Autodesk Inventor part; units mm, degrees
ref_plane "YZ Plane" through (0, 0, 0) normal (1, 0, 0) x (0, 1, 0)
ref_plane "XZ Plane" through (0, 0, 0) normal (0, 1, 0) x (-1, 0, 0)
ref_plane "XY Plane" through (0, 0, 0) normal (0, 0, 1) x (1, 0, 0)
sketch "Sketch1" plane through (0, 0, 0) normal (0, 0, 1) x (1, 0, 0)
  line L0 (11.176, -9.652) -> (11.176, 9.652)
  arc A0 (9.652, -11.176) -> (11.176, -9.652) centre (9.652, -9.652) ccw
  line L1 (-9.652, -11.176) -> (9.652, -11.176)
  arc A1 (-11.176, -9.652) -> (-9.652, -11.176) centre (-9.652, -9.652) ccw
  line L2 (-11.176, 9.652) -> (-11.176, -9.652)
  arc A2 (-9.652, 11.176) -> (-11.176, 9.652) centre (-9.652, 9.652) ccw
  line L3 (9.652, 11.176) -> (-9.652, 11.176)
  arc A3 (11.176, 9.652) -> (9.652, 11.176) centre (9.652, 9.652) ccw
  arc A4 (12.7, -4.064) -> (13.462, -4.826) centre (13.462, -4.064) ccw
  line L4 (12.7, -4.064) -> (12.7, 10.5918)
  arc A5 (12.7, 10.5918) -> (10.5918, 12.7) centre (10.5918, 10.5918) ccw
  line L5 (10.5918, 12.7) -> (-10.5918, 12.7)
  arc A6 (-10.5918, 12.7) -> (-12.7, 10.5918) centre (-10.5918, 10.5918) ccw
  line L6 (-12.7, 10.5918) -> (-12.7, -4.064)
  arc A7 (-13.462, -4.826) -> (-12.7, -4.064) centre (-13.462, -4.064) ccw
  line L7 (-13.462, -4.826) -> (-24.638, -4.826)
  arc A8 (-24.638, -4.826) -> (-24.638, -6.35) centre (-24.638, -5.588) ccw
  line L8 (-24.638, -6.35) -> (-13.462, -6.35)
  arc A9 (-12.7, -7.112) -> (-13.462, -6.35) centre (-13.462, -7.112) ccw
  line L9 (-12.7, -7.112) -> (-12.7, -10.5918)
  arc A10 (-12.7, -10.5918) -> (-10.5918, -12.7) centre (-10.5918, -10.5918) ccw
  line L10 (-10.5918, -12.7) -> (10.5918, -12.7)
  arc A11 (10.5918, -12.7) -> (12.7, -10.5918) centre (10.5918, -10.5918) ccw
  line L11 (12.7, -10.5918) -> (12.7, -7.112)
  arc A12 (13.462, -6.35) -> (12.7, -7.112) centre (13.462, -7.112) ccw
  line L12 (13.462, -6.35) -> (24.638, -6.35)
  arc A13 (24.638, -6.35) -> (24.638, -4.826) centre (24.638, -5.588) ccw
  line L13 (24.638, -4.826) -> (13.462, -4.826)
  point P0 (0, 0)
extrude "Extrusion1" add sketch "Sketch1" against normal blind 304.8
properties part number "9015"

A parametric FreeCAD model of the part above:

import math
import FreeCAD as App
import Part
import Sketcher

V = App.Vector
Q = App.Units.Quantity

doc = App.newDocument("Part")
params = doc.addObject("Spreadsheet::Sheet", "Params")
for row, (alias, value) in enumerate([
    ("sketch1_radius", "0.03 in"),
    ("sketch1_radius2", "0.06 in"),
    ("sketch1_radius3", "0.083 in"),
    ("sketch1_width", "0.44 in"),
    ("sketch1_width2", "0.76 in"),
    ("pad1_length", "12 in"),
], start=1):
    params.set(f"A{row}", alias)
    params.set(f"B{row}", "=" + value)
    params.setAlias(f"B{row}", alias)

body = doc.addObject("PartDesign::Body", "Body")

# Sketch on XY plane
sketch1 = doc.addObject("Sketcher::SketchObject", "Sketch")
body.addObject(sketch1)
sketch1.AttachmentSupport = (doc.XY_Plane, [""])
sketch1.MapMode = "FlatFace"
sketch1.addGeometry(Part.ArcOfCircle(Part.Circle(V(13.5, -4.1, 0), V(0, 0, 1), 0.8), math.radians(180), math.radians(270)), False)
sketch1.addGeometry(Part.LineSegment(V(12.7, -4.1, 0), V(12.7, 10.6, 0)), False)
sketch1.addGeometry(Part.ArcOfCircle(Part.Circle(V(10.6, 10.6, 0), V(0, 0, 1), 2.1), math.radians(0), math.radians(90)), False)
sketch1.addGeometry(Part.LineSegment(V(10.6, 12.7, 0), V(-10.6, 12.7, 0)), False)
sketch1.addGeometry(Part.ArcOfCircle(Part.Circle(V(-10.6, 10.6, 0), V(0, 0, 1), 2.1), math.radians(90), math.radians(180)), False)
sketch1.addGeometry(Part.LineSegment(V(-12.7, 10.6, 0), V(-12.7, -4.1, 0)), False)
sketch1.addGeometry(Part.ArcOfCircle(Part.Circle(V(-13.5, -4.1, 0), V(0, 0, 1), 0.8), math.radians(-90), math.radians(0)), False)
sketch1.addGeometry(Part.LineSegment(V(-13.5, -4.8, 0), V(-24.6, -4.8, 0)), False)
sketch1.addGeometry(Part.ArcOfCircle(Part.Circle(V(-24.6, -5.6, 0), V(0, 0, 1), 0.8), math.radians(90), math.radians(270)), False)
sketch1.addGeometry(Part.LineSegment(V(-24.6, -6.3, 0), V(-13.5, -6.3, 0)), False)
sketch1.addGeometry(Part.ArcOfCircle(Part.Circle(V(-13.5, -7.1, 0), V(0, 0, 1), 0.8), math.radians(0), math.radians(90)), False)
sketch1.addGeometry(Part.LineSegment(V(-12.7, -7.1, 0), V(-12.7, -10.6, 0)), False)
sketch1.addGeometry(Part.ArcOfCircle(Part.Circle(V(-10.6, -10.6, 0), V(0, 0, 1), 2.1), math.radians(180), math.radians(270)), False)
sketch1.addGeometry(Part.LineSegment(V(-10.6, -12.7, 0), V(10.6, -12.7, 0)), False)
sketch1.addGeometry(Part.ArcOfCircle(Part.Circle(V(10.6, -10.6, 0), V(0, 0, 1), 2.1), math.radians(-90), math.radians(0)), False)
sketch1.addGeometry(Part.LineSegment(V(12.7, -10.6, 0), V(12.7, -7.1, 0)), False)
sketch1.addGeometry(Part.ArcOfCircle(Part.Circle(V(13.5, -7.1, 0), V(0, 0, 1), 0.8), math.radians(90), math.radians(180)), False)
sketch1.addGeometry(Part.LineSegment(V(13.5, -6.3, 0), V(24.6, -6.3, 0)), False)
sketch1.addGeometry(Part.ArcOfCircle(Part.Circle(V(24.6, -5.6, 0), V(0, 0, 1), 0.8), math.radians(-90), math.radians(90)), False)
sketch1.addGeometry(Part.LineSegment(V(24.6, -4.8, 0), V(13.5, -4.8, 0)), False)
sketch1.addGeometry(Part.LineSegment(V(11.2, 9.7, 0), V(11.2, -9.7, 0)), False)
sketch1.addGeometry(Part.ArcOfCircle(Part.Circle(V(9.7, -9.7, 0), V(0, 0, 1), 1.5), math.radians(-90), math.radians(0)), False)
sketch1.addGeometry(Part.LineSegment(V(9.7, -11.2, 0), V(-9.7, -11.2, 0)), False)
sketch1.addGeometry(Part.ArcOfCircle(Part.Circle(V(-9.7, -9.7, 0), V(0, 0, 1), 1.5), math.radians(180), math.radians(270)), False)
sketch1.addGeometry(Part.LineSegment(V(-11.2, -9.7, 0), V(-11.2, 9.7, 0)), False)
sketch1.addGeometry(Part.ArcOfCircle(Part.Circle(V(-9.7, 9.7, 0), V(0, 0, 1), 1.5), math.radians(90), math.radians(180)), False)
sketch1.addGeometry(Part.LineSegment(V(-9.7, 11.2, 0), V(9.7, 11.2, 0)), False)
sketch1.addGeometry(Part.ArcOfCircle(Part.Circle(V(9.7, 9.7, 0), V(0, 0, 1), 1.5), math.radians(0), math.radians(90)), False)
sketch1.addConstraint(Sketcher.Constraint("Tangent", 0, 1, 1, 1))
sketch1.addConstraint(Sketcher.Constraint("Tangent", 1, 2, 2, 1))
sketch1.addConstraint(Sketcher.Constraint("Tangent", 2, 2, 3, 1))
sketch1.addConstraint(Sketcher.Constraint("Tangent", 3, 2, 4, 1))
sketch1.addConstraint(Sketcher.Constraint("Tangent", 4, 2, 5, 1))
sketch1.addConstraint(Sketcher.Constraint("Tangent", 5, 2, 6, 2))
sketch1.addConstraint(Sketcher.Constraint("Tangent", 6, 1, 7, 1))
sketch1.addConstraint(Sketcher.Constraint("Tangent", 7, 2, 8, 1))
sketch1.addConstraint(Sketcher.Constraint("Tangent", 8, 2, 9, 1))
sketch1.addConstraint(Sketcher.Constraint("Tangent", 9, 2, 10, 2))
sketch1.addConstraint(Sketcher.Constraint("Tangent", 10, 1, 11, 1))
sketch1.addConstraint(Sketcher.Constraint("Tangent", 11, 2, 12, 1))
sketch1.addConstraint(Sketcher.Constraint("Tangent", 12, 2, 13, 1))
sketch1.addConstraint(Sketcher.Constraint("Tangent", 13, 2, 14, 1))
sketch1.addConstraint(Sketcher.Constraint("Tangent", 14, 2, 15, 1))
sketch1.addConstraint(Sketcher.Constraint("Tangent", 15, 2, 16, 2))
sketch1.addConstraint(Sketcher.Constraint("Tangent", 16, 1, 17, 1))
sketch1.addConstraint(Sketcher.Constraint("Tangent", 17, 2, 18, 1))
sketch1.addConstraint(Sketcher.Constraint("Tangent", 18, 2, 19, 1))
sketch1.addConstraint(Sketcher.Constraint("Tangent", 19, 2, 0, 2))
sketch1.addConstraint(Sketcher.Constraint("Tangent", 20, 2, 21, 2))
sketch1.addConstraint(Sketcher.Constraint("Tangent", 21, 1, 22, 1))
sketch1.addConstraint(Sketcher.Constraint("Tangent", 22, 2, 23, 2))
sketch1.addConstraint(Sketcher.Constraint("Tangent", 23, 1, 24, 1))
sketch1.addConstraint(Sketcher.Constraint("Tangent", 24, 2, 25, 2))
sketch1.addConstraint(Sketcher.Constraint("Tangent", 25, 1, 26, 1))
sketch1.addConstraint(Sketcher.Constraint("Tangent", 26, 2, 27, 2))
sketch1.addConstraint(Sketcher.Constraint("Tangent", 27, 1, 20, 1))
sketch1.addConstraint(Sketcher.Constraint("Vertical", 1))
sketch1.addConstraint(Sketcher.Constraint("Horizontal", 3))
sketch1.addConstraint(Sketcher.Constraint("Vertical", 5))
sketch1.addConstraint(Sketcher.Constraint("Horizontal", 7))
sketch1.addConstraint(Sketcher.Constraint("Horizontal", 9))
sketch1.addConstraint(Sketcher.Constraint("Vertical", 11))
sketch1.addConstraint(Sketcher.Constraint("Horizontal", 13))
sketch1.addConstraint(Sketcher.Constraint("Vertical", 15))
sketch1.addConstraint(Sketcher.Constraint("Horizontal", 17))
sketch1.addConstraint(Sketcher.Constraint("Horizontal", 19))
sketch1.addConstraint(Sketcher.Constraint("Vertical", 20))
sketch1.addConstraint(Sketcher.Constraint("Horizontal", 22))
sketch1.addConstraint(Sketcher.Constraint("Vertical", 24))
sketch1.addConstraint(Sketcher.Constraint("Horizontal", 26))
sketch1.addConstraint(Sketcher.Constraint("Equal", 2, 4))
sketch1.addConstraint(Sketcher.Constraint("Equal", 0, 6))
sketch1.addConstraint(Sketcher.Constraint("Equal", 6, 8))
sketch1.addConstraint(Sketcher.Constraint("Equal", 8, 10))
sketch1.addConstraint(Sketcher.Constraint("Equal", 4, 12))
sketch1.addConstraint(Sketcher.Constraint("Equal", 12, 14))
sketch1.addConstraint(Sketcher.Constraint("Equal", 10, 16))
sketch1.addConstraint(Sketcher.Constraint("Equal", 16, 18))
sketch1.addConstraint(Sketcher.Constraint("Equal", 21, 23))
sketch1.addConstraint(Sketcher.Constraint("Equal", 23, 25))
sketch1.addConstraint(Sketcher.Constraint("Equal", 25, 27))
sketch1.addConstraint(Sketcher.Constraint("Symmetric", 2, 3, 12, 3, -1, 1))
sketch1.addConstraint(Sketcher.Constraint("Symmetric", 21, 3, 25, 3, -1, 1))
sketch1.addConstraint(Sketcher.Constraint("Symmetric", 0, 3, 6, 3, -2))
sketch1.addConstraint(Sketcher.Constraint("Vertical", 2, 3, 14, 3))
sketch1.addConstraint(Sketcher.Constraint("Equal", 9, 17))
sketch1.addConstraint(Sketcher.Constraint("Equal", 26, 20))
sketch1.addConstraint(Sketcher.Constraint("Radius", 0, Q("0.03 in")))
sketch1.addConstraint(Sketcher.Constraint("Radius", 21, Q("0.06 in")))
sketch1.addConstraint(Sketcher.Constraint("Radius", 2, Q("0.083 in")))
sketch1.addConstraint(Sketcher.Constraint("DistanceX", 7, 2, 7, 1, Q("0.44 in")))
sketch1.addConstraint(Sketcher.Constraint("DistanceX", 22, 2, 22, 1, Q("0.76 in")))
sketch1.addConstraint(Sketcher.Constraint("DistanceX", -1, 1, 0, 1, Q("0.5 in")))
sketch1.addConstraint(Sketcher.Constraint("DistanceY", -1, 1, 2, 2, Q("0.5 in")))
sketch1.addConstraint(Sketcher.Constraint("DistanceY", 21, 3, 16, 3, Q("0.1 in")))
sketch1.setExpression("Constraints[59]", "Params.sketch1_radius")
sketch1.setExpression("Constraints[60]", "Params.sketch1_radius2")
sketch1.setExpression("Constraints[61]", "Params.sketch1_radius3")
sketch1.setExpression("Constraints[62]", "Params.sketch1_width")
sketch1.setExpression("Constraints[63]", "Params.sketch1_width2")
pad1 = doc.addObject("PartDesign::Pad", "Pad")
body.addObject(pad1)
pad1.Profile = sketch1
pad1.setExpression("Length", "Params.pad1_length")
pad1.Reversed = True

doc.recompute()
